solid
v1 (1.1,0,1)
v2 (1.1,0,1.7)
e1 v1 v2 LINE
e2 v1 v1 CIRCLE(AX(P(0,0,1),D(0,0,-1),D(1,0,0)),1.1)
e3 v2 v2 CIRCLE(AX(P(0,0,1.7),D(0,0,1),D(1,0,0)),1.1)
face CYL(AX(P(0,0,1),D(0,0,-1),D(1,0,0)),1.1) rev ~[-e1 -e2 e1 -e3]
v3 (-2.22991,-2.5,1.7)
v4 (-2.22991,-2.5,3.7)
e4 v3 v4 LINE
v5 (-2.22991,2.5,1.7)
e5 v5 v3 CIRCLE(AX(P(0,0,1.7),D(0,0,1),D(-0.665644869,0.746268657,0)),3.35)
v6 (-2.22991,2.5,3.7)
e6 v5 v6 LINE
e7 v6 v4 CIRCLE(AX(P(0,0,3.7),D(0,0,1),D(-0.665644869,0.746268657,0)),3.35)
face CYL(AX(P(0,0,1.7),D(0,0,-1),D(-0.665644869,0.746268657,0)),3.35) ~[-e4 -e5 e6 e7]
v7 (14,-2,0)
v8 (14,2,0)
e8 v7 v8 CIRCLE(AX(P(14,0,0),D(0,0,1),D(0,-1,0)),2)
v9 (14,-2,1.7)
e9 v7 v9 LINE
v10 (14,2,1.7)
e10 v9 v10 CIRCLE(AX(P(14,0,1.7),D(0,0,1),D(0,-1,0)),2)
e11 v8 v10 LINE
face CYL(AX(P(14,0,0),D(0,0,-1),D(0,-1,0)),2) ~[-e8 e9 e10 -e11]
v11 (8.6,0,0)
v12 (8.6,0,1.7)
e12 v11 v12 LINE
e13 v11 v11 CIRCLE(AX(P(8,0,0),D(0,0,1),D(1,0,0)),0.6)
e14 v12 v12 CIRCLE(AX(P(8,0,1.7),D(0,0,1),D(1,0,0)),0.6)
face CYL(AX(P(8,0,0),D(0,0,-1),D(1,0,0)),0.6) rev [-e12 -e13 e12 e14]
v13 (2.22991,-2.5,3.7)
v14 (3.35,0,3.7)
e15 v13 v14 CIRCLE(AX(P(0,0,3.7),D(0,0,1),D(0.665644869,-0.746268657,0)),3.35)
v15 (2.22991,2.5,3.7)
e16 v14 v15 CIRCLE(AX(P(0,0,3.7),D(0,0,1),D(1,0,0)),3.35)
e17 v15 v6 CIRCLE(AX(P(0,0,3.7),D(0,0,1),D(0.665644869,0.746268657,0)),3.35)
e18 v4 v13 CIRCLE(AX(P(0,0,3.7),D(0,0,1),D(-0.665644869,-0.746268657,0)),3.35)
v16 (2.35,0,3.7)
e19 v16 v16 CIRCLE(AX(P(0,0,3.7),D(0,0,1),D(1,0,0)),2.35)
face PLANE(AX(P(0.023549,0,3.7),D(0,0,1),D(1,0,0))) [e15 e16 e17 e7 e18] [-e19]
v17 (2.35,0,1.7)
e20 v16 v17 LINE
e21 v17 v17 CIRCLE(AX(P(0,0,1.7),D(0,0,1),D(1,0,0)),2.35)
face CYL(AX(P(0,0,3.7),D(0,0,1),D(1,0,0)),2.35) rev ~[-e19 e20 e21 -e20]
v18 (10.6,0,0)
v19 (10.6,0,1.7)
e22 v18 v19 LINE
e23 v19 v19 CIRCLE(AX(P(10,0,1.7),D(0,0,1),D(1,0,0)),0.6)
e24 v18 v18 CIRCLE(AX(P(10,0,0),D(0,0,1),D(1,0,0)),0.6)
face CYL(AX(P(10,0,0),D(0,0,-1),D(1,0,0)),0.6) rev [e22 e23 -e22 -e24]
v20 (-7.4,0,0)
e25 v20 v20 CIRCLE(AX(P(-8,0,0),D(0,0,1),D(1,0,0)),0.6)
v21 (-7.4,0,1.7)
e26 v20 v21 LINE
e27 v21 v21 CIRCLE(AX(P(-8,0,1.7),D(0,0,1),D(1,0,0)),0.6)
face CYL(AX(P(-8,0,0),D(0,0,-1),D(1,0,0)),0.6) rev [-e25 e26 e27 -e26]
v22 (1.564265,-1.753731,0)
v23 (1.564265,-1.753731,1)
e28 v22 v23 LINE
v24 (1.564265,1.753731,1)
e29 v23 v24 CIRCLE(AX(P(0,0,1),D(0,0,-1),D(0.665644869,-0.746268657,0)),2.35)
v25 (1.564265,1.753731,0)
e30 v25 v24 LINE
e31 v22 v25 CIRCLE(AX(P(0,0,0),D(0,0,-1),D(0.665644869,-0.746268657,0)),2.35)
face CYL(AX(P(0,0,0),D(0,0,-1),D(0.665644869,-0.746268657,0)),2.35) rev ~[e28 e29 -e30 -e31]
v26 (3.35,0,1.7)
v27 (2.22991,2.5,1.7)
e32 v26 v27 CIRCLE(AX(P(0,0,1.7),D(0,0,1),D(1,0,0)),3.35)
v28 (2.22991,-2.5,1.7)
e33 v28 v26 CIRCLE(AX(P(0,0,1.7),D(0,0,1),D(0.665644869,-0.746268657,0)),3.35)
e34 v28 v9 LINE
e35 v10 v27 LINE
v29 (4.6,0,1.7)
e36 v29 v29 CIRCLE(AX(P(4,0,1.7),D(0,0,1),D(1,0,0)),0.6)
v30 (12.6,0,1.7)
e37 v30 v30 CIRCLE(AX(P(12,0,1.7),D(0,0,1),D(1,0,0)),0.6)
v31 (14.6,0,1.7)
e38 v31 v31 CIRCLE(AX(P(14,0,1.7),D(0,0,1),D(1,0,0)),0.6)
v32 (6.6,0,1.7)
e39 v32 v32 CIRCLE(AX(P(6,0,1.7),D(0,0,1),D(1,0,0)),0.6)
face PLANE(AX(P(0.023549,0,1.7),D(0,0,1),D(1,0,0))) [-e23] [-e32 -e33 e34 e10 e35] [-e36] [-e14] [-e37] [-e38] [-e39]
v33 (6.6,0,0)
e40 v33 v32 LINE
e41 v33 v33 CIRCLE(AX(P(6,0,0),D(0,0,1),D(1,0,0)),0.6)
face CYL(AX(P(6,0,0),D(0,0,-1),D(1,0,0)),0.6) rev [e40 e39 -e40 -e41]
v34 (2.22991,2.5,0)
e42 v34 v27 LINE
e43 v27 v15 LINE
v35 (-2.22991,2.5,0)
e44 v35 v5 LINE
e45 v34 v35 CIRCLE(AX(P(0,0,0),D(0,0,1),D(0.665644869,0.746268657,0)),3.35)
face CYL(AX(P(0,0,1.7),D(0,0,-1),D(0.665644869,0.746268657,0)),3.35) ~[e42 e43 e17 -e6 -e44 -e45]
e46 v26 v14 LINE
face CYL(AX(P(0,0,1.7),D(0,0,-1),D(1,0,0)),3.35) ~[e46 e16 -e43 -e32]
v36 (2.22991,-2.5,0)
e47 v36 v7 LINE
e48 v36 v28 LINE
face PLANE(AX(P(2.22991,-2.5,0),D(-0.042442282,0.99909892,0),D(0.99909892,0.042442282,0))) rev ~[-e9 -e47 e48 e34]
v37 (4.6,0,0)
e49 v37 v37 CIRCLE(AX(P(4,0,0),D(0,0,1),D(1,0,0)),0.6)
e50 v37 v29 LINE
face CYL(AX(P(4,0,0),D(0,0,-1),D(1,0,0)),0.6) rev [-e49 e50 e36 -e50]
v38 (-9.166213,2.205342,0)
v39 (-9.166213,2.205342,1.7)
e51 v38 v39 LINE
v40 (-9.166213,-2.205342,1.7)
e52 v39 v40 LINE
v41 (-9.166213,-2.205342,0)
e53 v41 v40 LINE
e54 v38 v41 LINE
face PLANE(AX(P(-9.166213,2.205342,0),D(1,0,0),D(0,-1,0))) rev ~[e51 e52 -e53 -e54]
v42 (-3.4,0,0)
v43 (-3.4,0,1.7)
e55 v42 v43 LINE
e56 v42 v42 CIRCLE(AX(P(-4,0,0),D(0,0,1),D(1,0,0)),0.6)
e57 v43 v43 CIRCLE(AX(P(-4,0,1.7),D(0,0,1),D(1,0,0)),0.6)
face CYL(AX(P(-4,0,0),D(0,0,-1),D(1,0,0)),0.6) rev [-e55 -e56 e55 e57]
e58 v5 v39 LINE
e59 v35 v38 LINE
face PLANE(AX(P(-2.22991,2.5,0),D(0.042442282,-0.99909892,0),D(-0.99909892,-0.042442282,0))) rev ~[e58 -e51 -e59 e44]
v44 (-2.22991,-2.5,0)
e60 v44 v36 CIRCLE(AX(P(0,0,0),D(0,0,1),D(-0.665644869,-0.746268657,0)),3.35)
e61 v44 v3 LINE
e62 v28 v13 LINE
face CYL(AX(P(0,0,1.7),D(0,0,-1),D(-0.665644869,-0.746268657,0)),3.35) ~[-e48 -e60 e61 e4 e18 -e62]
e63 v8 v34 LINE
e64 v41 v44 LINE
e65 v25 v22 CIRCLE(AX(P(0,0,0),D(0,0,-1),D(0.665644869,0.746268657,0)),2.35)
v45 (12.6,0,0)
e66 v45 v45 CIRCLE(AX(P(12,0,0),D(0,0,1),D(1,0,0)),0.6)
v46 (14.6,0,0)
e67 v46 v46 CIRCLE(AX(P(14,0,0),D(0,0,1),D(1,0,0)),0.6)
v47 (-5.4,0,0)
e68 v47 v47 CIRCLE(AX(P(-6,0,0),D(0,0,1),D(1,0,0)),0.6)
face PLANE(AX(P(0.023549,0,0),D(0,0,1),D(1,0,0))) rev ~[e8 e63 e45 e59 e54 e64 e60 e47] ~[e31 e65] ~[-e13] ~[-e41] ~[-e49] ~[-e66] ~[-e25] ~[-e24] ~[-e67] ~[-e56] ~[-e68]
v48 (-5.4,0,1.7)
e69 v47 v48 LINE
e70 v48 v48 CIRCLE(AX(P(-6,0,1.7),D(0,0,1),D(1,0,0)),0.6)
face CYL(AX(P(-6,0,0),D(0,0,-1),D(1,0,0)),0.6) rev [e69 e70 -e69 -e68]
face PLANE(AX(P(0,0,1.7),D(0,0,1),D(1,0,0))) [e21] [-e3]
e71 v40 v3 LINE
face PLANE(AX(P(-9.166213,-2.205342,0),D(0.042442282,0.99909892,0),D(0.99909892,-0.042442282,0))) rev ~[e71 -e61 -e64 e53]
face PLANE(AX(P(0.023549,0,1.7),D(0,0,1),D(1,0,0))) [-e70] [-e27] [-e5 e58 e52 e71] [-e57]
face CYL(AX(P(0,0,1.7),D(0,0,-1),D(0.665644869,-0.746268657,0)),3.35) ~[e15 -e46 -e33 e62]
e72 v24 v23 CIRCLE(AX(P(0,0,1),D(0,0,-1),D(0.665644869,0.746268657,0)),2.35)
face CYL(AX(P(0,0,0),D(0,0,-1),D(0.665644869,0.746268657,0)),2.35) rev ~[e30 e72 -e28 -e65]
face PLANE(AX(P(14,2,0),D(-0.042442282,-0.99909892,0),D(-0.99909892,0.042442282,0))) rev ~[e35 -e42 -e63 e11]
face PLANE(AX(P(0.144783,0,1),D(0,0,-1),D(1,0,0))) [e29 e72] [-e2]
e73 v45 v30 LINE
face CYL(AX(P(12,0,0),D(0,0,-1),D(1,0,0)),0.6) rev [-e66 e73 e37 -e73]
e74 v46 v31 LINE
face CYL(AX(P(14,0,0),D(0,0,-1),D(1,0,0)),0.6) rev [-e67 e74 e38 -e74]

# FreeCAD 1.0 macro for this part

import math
import FreeCAD as App
import Part
import Sketcher

V = App.Vector
Q = App.Units.Quantity

doc = App.newDocument("Part")
params = doc.addObject("Spreadsheet::Sheet", "Params")
for row, (alias, value) in enumerate([
    ("sketch1_radius", "2 mm"),
    ("sketch1_diameter", "1.2 mm"),
    ("sketch1_radius2", "3.35 mm"),
    ("pad1_length", "1.7 mm"),
    ("sketch2_radius", "3.35 mm"),
    ("pad2_length", "2 mm"),
    ("sketch3_radius", "2.35 mm"),
    ("pocket1_length", "1 mm"),
    ("sketch4_diameter", "2.2 mm"),
    ("sketch5_diameter", "4.7 mm"),
    ("sketch5_diameter2", "2.2 mm"),
    ("pocket3_length", "2 mm"),
], start=1):
    params.set(f"A{row}", alias)
    params.set(f"B{row}", "=" + value)
    params.setAlias(f"B{row}", alias)

body = doc.addObject("PartDesign::Body", "Body")

# Sketch on XY plane
sketch1 = body.newObject("Sketcher::SketchObject", "Sketch")
sketch1.AttachmentSupport = (doc.getObject("XY_Plane"), [""])
sketch1.MapMode = "FlatFace"
sketch1.addGeometry(Part.ArcOfCircle(Part.Circle(V(0, 0, 0), V(0, 0, 1), 3.4), math.radians(48), math.radians(132)), False)
sketch1.addGeometry(Part.LineSegment(V(-2.2, 2.5, 0), V(-9.2, 2.2, 0)), False)
sketch1.addGeometry(Part.LineSegment(V(-9.2, 2.2, 0), V(-9.2, -2.2, 0)), False)
sketch1.addGeometry(Part.LineSegment(V(-9.2, -2.2, 0), V(-2.2, -2.5, 0)), False)
sketch1.addGeometry(Part.ArcOfCircle(Part.Circle(V(0, 0, 0), V(0, 0, 1), 3.4), math.radians(-132), math.radians(-48)), False)
sketch1.addGeometry(Part.LineSegment(V(2.2, -2.5, 0), V(14, -2, 0)), False)
sketch1.addGeometry(Part.ArcOfCircle(Part.Circle(V(14, 0, 0), V(0, 0, 1), 2), math.radians(-90), math.radians(90)), False)
sketch1.addGeometry(Part.LineSegment(V(14, 2, 0), V(2.2, 2.5, 0)), False)
sketch1.addGeometry(Part.Circle(V(-8, 0, 0), V(0, 0, 1), 0.6), False)
sketch1.addGeometry(Part.Circle(V(-6, 0, 0), V(0, 0, 1), 0.6), False)
sketch1.addGeometry(Part.Circle(V(-4, 0, 0), V(0, 0, 1), 0.6), False)
sketch1.addGeometry(Part.Circle(V(4, 0, 0), V(0, 0, 1), 0.6), False)
sketch1.addGeometry(Part.Circle(V(6, 0, 0), V(0, 0, 1), 0.6), False)
sketch1.addGeometry(Part.Circle(V(8, 0, 0), V(0, 0, 1), 0.6), False)
sketch1.addGeometry(Part.Circle(V(10, 0, 0), V(0, 0, 1), 0.6), False)
sketch1.addGeometry(Part.Circle(V(12, 0, 0), V(0, 0, 1), 0.6), False)
sketch1.addGeometry(Part.Circle(V(14, 0, 0), V(0, 0, 1), 0.6), False)
sketch1.addConstraint(Sketcher.Constraint("Coincident", 0, 2, 1, 1))
sketch1.addConstraint(Sketcher.Constraint("Coincident", 1, 2, 2, 1))
sketch1.addConstraint(Sketcher.Constraint("Coincident", 2, 2, 3, 1))
sketch1.addConstraint(Sketcher.Constraint("Coincident", 3, 2, 4, 1))
sketch1.addConstraint(Sketcher.Constraint("Coincident", 4, 2, 5, 1))
sketch1.addConstraint(Sketcher.Constraint("Coincident", 5, 2, 6, 1))
sketch1.addConstraint(Sketcher.Constraint("Coincident", 6, 2, 7, 1))
sketch1.addConstraint(Sketcher.Constraint("Coincident", 7, 2, 0, 1))
sketch1.addConstraint(Sketcher.Constraint("Vertical", 2))
sketch1.addConstraint(Sketcher.Constraint("Coincident", 0, 3, -1, 1))
sketch1.addConstraint(Sketcher.Constraint("Coincident", 4, 3, -1, 1))
sketch1.addConstraint(Sketcher.Constraint("Coincident", 16, 3, 6, 3))
sketch1.addConstraint(Sketcher.Constraint("Equal", 0, 4))
sketch1.addConstraint(Sketcher.Constraint("Equal", 8, 9))
sketch1.addConstraint(Sketcher.Constraint("Equal", 9, 10))
sketch1.addConstraint(Sketcher.Constraint("Equal", 10, 11))
sketch1.addConstraint(Sketcher.Constraint("Equal", 11, 12))
sketch1.addConstraint(Sketcher.Constraint("Equal", 12, 13))
sketch1.addConstraint(Sketcher.Constraint("Equal", 13, 14))
sketch1.addConstraint(Sketcher.Constraint("Equal", 14, 15))
sketch1.addConstraint(Sketcher.Constraint("Equal", 15, 16))
sketch1.addConstraint(Sketcher.Constraint("Symmetric", 10, 3, 11, 3, -1, 1))
sketch1.addConstraint(Sketcher.Constraint("Symmetric", 9, 3, 12, 3, -1, 1))
sketch1.addConstraint(Sketcher.Constraint("Symmetric", 8, 3, 13, 3, -1, 1))
sketch1.addConstraint(Sketcher.Constraint("Symmetric", 5, 2, 6, 2, -1))
sketch1.addConstraint(Sketcher.Constraint("PointOnObject", 8, 3, -1))
sketch1.addConstraint(Sketcher.Constraint("PointOnObject", 9, 3, -1))
sketch1.addConstraint(Sketcher.Constraint("PointOnObject", 10, 3, -1))
sketch1.addConstraint(Sketcher.Constraint("PointOnObject", 14, 3, -1))
sketch1.addConstraint(Sketcher.Constraint("PointOnObject", 15, 3, -1))
sketch1.addConstraint(Sketcher.Constraint("Parallel", 1, 5))
sketch1.addConstraint(Sketcher.Constraint("Parallel", 3, 7))
sketch1.addConstraint(Sketcher.Constraint("Horizontal", 3, 2, 4, 2))
sketch1.addConstraint(Sketcher.Constraint("Horizontal", 0, 2, 7, 2))
sketch1.addConstraint(Sketcher.Constraint("Vertical", 0, 2, 3, 2))
sketch1.addConstraint(Sketcher.Constraint("Vertical", 16, 3, 5, 2))
sketch1.addConstraint(Sketcher.Constraint("Radius", 6, Q("2 mm")))
sketch1.addConstraint(Sketcher.Constraint("Diameter", 8, Q("1.2 mm")))
sketch1.addConstraint(Sketcher.Constraint("Radius", 0, Q("3.35 mm")))
sketch1.addConstraint(Sketcher.Constraint("DistanceX", -1, 1, 6, 3, Q("14 mm")))
sketch1.addConstraint(Sketcher.Constraint("DistanceX", 8, 3, -1, 1, Q("8 mm")))
sketch1.addConstraint(Sketcher.Constraint("DistanceX", 9, 3, -1, 1, Q("6 mm")))
sketch1.addConstraint(Sketcher.Constraint("DistanceX", 10, 3, -1, 1, Q("4 mm")))
sketch1.addConstraint(Sketcher.Constraint("DistanceX", -1, 1, 14, 3, Q("10 mm")))
sketch1.addConstraint(Sketcher.Constraint("DistanceX", -1, 1, 15, 3, Q("12 mm")))
sketch1.addConstraint(Sketcher.Constraint("DistanceY", 3, 2, 0, 2, Q("5 mm")))
sketch1.addConstraint(Sketcher.Constraint("Distance", 1, Q("6.942558 mm")))
sketch1.setExpression("Constraints[36]", "Params.sketch1_radius")
sketch1.setExpression("Constraints[37]", "Params.sketch1_diameter")
sketch1.setExpression("Constraints[38]", "Params.sketch1_radius2")
pad1 = body.newObject("PartDesign::Pad", "Pad")
pad1.Profile = sketch1
pad1.setExpression("Length", "Params.pad1_length")

# Sketch on XY plane
sketch2 = body.newObject("Sketcher::SketchObject", "Sketch001")
sketch2.AttachmentSupport = (doc.getObject("XY_Plane"), [""])
sketch2.MapMode = "FlatFace"
sketch2.AttachmentOffset = App.Placement(V(0, 0, 1.7), App.Rotation())
sketch2.addGeometry(Part.ArcOfCircle(Part.Circle(V(0, 0, 0), V(0, 0, 1), 3.4), math.radians(-48), math.radians(0)), False)
sketch2.addGeometry(Part.ArcOfCircle(Part.Circle(V(0, 0, 0), V(0, 0, 1), 3.4), math.radians(0), math.radians(48)), False)
sketch2.addGeometry(Part.ArcOfCircle(Part.Circle(V(0, 0, 0), V(0, 0, 1), 3.4), math.radians(48), math.radians(132)), False)
sketch2.addGeometry(Part.ArcOfCircle(Part.Circle(V(0, 0, 0), V(0, 0, 1), 3.4), math.radians(132), math.radians(228)), False)
sketch2.addGeometry(Part.ArcOfCircle(Part.Circle(V(0, 0, 0), V(0, 0, 1), 3.4), math.radians(-132), math.radians(-48)), False)
sketch2.addConstraint(Sketcher.Constraint("Tangent", 0, 2, 1, 1))
sketch2.addConstraint(Sketcher.Constraint("Tangent", 1, 2, 2, 1))
sketch2.addConstraint(Sketcher.Constraint("Tangent", 2, 2, 3, 1))
sketch2.addConstraint(Sketcher.Constraint("Tangent", 3, 2, 4, 1))
sketch2.addConstraint(Sketcher.Constraint("Tangent", 4, 2, 0, 1))
sketch2.addConstraint(Sketcher.Constraint("Coincident", 0, 3, -1, 1))
sketch2.addConstraint(Sketcher.Constraint("Coincident", 2, 3, -1, 1))
sketch2.addConstraint(Sketcher.Constraint("PointOnObject", 0, 2, -1))
sketch2.addConstraint(Sketcher.Constraint("Horizontal", 1, 2, 2, 2))
sketch2.addConstraint(Sketcher.Constraint("Horizontal", 3, 2, 4, 2))
sketch2.addConstraint(Sketcher.Constraint("Vertical", 2, 2, 3, 2))
sketch2.addConstraint(Sketcher.Constraint("Radius", 0, Q("3.35 mm")))
sketch2.addConstraint(Sketcher.Constraint("DistanceY", -1, 1, 1, 2, Q("2.5 mm")))
sketch2.setExpression("Constraints[11]", "Params.sketch2_radius")
pad2 = body.newObject("PartDesign::Pad", "Pad001")
pad2.Profile = sketch2
pad2.setExpression("Length", "Params.pad2_length")

# Sketch on XY plane
sketch3 = body.newObject("Sketcher::SketchObject", "Sketch002")
sketch3.AttachmentSupport = (doc.getObject("XY_Plane"), [""])
sketch3.MapMode = "FlatFace"
sketch3.addGeometry(Part.ArcOfCircle(Part.Circle(V(0, 0, 0), V(0, 0, 1), 2.4), math.radians(48), math.radians(312)), False)
sketch3.addGeometry(Part.ArcOfCircle(Part.Circle(V(0, 0, 0), V(0, 0, 1), 2.4), math.radians(-48), math.radians(48)), False)
sketch3.addConstraint(Sketcher.Constraint("Tangent", 0, 1, 1, 2))
sketch3.addConstraint(Sketcher.Constraint("Coincident", 1, 1, 0, 2))
sketch3.addConstraint(Sketcher.Constraint("Coincident", 0, 3, -1, 1))
sketch3.addConstraint(Sketcher.Constraint("Vertical", 0, 1, 1, 1))
sketch3.addConstraint(Sketcher.Constraint("Radius", 0, Q("2.35 mm")))
sketch3.addConstraint(Sketcher.Constraint("DistanceY", -1, 1, 0, 1, Q("1.753731 mm")))
sketch3.setExpression("Constraints[4]", "Params.sketch3_radius")
pocket1 = body.newObject("PartDesign::Pocket", "Pocket")
pocket1.Profile = sketch3
pocket1.setExpression("Length", "Params.pocket1_length")
pocket1.Reversed = True

# Sketch on XY plane
sketch4 = body.newObject("Sketcher::SketchObject", "Sketch003")
sketch4.AttachmentSupport = (doc.getObject("XY_Plane"), [""])
sketch4.MapMode = "FlatFace"
sketch4.AttachmentOffset = App.Placement(V(0, 0, 1), App.Rotation())
sketch4.addGeometry(Part.Circle(V(0, 0, 0), V(0, 0, 1), 1.1), False)
sketch4.addConstraint(Sketcher.Constraint("Coincident", 0, 3, -1, 1))
sketch4.addConstraint(Sketcher.Constraint("Diameter", 0, Q("2.2 mm")))
sketch4.setExpression("Constraints[1]", "Params.sketch4_diameter")
pocket2 = body.newObject("PartDesign::Pocket", "Pocket001")
pocket2.Profile = sketch4
pocket2.Type = "ThroughAll"
pocket2.Reversed = True

# Sketch on XY plane
sketch5 = body.newObject("Sketcher::SketchObject", "Sketch004")
sketch5.AttachmentSupport = (doc.getObject("XY_Plane"), [""])
sketch5.MapMode = "FlatFace"
sketch5.AttachmentOffset = App.Placement(V(0, 0, 3.7), App.Rotation())
sketch5.addGeometry(Part.Circle(V(0, 0, 0), V(0, 0, 1), 2.4), False)
sketch5.addGeometry(Part.Circle(V(0, 0, 0), V(0, 0, 1), 1.1), False)
sketch5.addConstraint(Sketcher.Constraint("Coincident", 0, 3, -1, 1))
sketch5.addConstraint(Sketcher.Constraint("Coincident", 1, 3, -1, 1))
sketch5.addConstraint(Sketcher.Constraint("Diameter", 0, Q("4.7 mm")))
sketch5.addConstraint(Sketcher.Constraint("Diameter", 1, Q("2.2 mm")))
sketch5.setExpression("Constraints[2]", "Params.sketch5_diameter")
sketch5.setExpression("Constraints[3]", "Params.sketch5_diameter2")
pocket3 = body.newObject("PartDesign::Pocket", "Pocket002")
pocket3.Profile = sketch5
pocket3.setExpression("Length", "Params.pocket3_length")

doc.recompute()
